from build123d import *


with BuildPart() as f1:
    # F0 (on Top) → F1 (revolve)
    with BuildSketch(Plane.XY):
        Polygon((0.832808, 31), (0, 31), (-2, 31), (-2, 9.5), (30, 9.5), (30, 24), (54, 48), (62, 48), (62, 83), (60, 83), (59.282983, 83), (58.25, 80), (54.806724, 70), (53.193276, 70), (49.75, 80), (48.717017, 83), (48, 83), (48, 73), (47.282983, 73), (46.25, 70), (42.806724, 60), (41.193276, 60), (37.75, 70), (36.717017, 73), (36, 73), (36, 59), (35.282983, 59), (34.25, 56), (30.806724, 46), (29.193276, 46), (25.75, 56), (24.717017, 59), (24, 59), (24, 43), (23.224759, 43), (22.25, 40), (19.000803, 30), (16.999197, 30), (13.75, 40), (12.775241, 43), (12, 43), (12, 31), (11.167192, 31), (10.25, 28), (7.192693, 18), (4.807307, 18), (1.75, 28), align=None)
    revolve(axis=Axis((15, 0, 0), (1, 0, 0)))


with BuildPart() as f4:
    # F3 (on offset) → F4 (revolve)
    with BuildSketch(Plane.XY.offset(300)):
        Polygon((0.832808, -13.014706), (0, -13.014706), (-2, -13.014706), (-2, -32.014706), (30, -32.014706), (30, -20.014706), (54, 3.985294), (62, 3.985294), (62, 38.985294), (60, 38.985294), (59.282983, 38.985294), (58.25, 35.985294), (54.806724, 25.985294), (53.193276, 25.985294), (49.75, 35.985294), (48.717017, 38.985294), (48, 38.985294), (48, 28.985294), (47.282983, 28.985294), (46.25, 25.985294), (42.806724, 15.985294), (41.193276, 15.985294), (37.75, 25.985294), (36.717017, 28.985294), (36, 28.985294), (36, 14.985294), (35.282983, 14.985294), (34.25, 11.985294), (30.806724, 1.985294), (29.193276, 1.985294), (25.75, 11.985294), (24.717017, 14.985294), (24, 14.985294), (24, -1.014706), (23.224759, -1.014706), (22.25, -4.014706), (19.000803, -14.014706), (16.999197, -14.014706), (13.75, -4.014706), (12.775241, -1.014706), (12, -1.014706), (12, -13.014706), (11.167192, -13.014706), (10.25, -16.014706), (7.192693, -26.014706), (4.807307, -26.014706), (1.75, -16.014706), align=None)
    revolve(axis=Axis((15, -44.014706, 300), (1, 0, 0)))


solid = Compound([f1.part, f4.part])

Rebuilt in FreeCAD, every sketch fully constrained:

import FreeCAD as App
import Part
import Sketcher
from FreeCAD import Vector
Q = App.Units.Quantity


def add_polygon(sketch, points):
    """Adds a closed chain of lines whose ends are joined by coincident constraints."""
    first, n = sketch.GeometryCount, len(points)
    for a, b in zip(points, points[1:] + points[:1]):
        sketch.addGeometry(Part.LineSegment(App.Vector(*a, 0), App.Vector(*b, 0)), False)
    for i in range(n):
        sketch.addConstraint(Sketcher.Constraint("Coincident", first + i, 2, first + (i + 1) % n, 1))

doc = App.newDocument("Part")
body = doc.addObject("PartDesign::Body", "Body")

sketch1 = body.newObject("Sketcher::SketchObject", "Sketch")
sketch1.AttachmentSupport = (doc.getObject("XY_Plane"), [""])
sketch1.MapMode = "FlatFace"
add_polygon(sketch1, [(0.8, 31), (-2, 31), (-2, 9.5), (30, 9.5), (30, 24), (54, 48), (62, 48), (62, 83), (59.3, 83), (58.2, 80), (54.8, 70), (53.2, 70), (49.8, 80), (48.7, 83), (48, 83), (48, 73), (47.3, 73), (46.2, 70), (42.8, 60), (41.2, 60), (37.8, 70), (36.7, 73), (36, 73), (36, 59), (35.3, 59), (34.2, 56), (30.8, 46), (29.2, 46), (25.8, 56), (24.7, 59), (24, 59), (24, 43), (23.2, 43), (22.2, 40), (19, 30), (17, 30), (13.8, 40), (12.8, 43), (12, 43), (12, 31), (11.2, 31), (10.2, 28), (7.2, 18), (4.8, 18), (1.8, 28)])
sketch1.addConstraint([
    Sketcher.Constraint("Horizontal", 0),
    Sketcher.Constraint("Vertical", 1),
    Sketcher.Constraint("Horizontal", 2),
    Sketcher.Constraint("Vertical", 3),
    Sketcher.Constraint("Horizontal", 5),
    Sketcher.Constraint("Vertical", 6),
    Sketcher.Constraint("Horizontal", 7),
    Sketcher.Constraint("Horizontal", 10),
    Sketcher.Constraint("Horizontal", 13),
    Sketcher.Constraint("Vertical", 14),
    Sketcher.Constraint("Horizontal", 15),
    Sketcher.Constraint("Horizontal", 18),
    Sketcher.Constraint("Horizontal", 21),
    Sketcher.Constraint("Vertical", 22),
    Sketcher.Constraint("Horizontal", 23),
    Sketcher.Constraint("Horizontal", 26),
    Sketcher.Constraint("Horizontal", 29),
    Sketcher.Constraint("Vertical", 30),
    Sketcher.Constraint("Horizontal", 31),
    Sketcher.Constraint("Horizontal", 34),
    Sketcher.Constraint("Horizontal", 37),
    Sketcher.Constraint("Vertical", 38),
    Sketcher.Constraint("Horizontal", 39),
    Sketcher.Constraint("Horizontal", 42),
    Sketcher.Constraint("Parallel", 8, 9),
    Sketcher.Constraint("Parallel", 11, 12),
    Sketcher.Constraint("Parallel", 9, 16),
    Sketcher.Constraint("Parallel", 16, 17),
    Sketcher.Constraint("Parallel", 12, 19),
    Sketcher.Constraint("Parallel", 19, 20),
    Sketcher.Constraint("Parallel", 17, 24),
    Sketcher.Constraint("Parallel", 24, 25),
    Sketcher.Constraint("Parallel", 20, 27),
    Sketcher.Constraint("Parallel", 27, 28),
    Sketcher.Constraint("Parallel", 32, 33),
    Sketcher.Constraint("Parallel", 35, 36),
    Sketcher.Constraint("Parallel", 40, 41),
    Sketcher.Constraint("Parallel", 43, 44),
    Sketcher.Constraint("Horizontal", 8, 2, 11, 2),
    Sketcher.Constraint("Horizontal", 7, 2, 12, 2),
    Sketcher.Constraint("Horizontal", 10, 2, 16, 2),
    Sketcher.Constraint("Horizontal", 16, 2, 19, 2),
    Sketcher.Constraint("Horizontal", 15, 2, 20, 2),
    Sketcher.Constraint("Horizontal", 24, 2, 27, 2),
    Sketcher.Constraint("Horizontal", 23, 2, 28, 2),
    Sketcher.Constraint("Horizontal", 32, 2, 35, 2),
    Sketcher.Constraint("Horizontal", 31, 2, 36, 2),
    Sketcher.Constraint("Horizontal", 0, 2, 38, 2),
    Sketcher.Constraint("Horizontal", 40, 2, 43, 2),
    Sketcher.Constraint("Equal", 13, 15),
    Sketcher.Constraint("Equal", 10, 18),
    Sketcher.Constraint("Equal", 15, 21),
    Sketcher.Constraint("Equal", 21, 23),
    Sketcher.Constraint("Equal", 18, 26),
    Sketcher.Constraint("Equal", 23, 29),
    Sketcher.Constraint("Equal", 31, 37),
    Sketcher.Constraint("Equal", 9, 11),
    Sketcher.Constraint("Equal", 12, 16),
    Sketcher.Constraint("Equal", 11, 17),
    Sketcher.Constraint("Equal", 20, 24),
    Sketcher.Constraint("Equal", 19, 25),
    Sketcher.Constraint("Equal", 33, 35),
    Sketcher.Constraint("Equal", 41, 43),
    Sketcher.Constraint("DistanceX", 2, 1, 2, 2, Q("32 mm")),
    Sketcher.Constraint("DistanceX", 5, 1, 5, 2, Q("8 mm")),
    Sketcher.Constraint("DistanceY", 6, 1, 6, 2, Q("35 mm")),
    Sketcher.Constraint("DistanceY", 14, 2, 14, 1, Q("10 mm")),
    Sketcher.Constraint("DistanceY", 22, 2, 22, 1, Q("14 mm")),
    Sketcher.Constraint("DistanceY", 30, 2, 30, 1, Q("16 mm")),
    Sketcher.Constraint("DistanceY", 38, 2, 38, 1, Q("12 mm")),
    Sketcher.Constraint("Angle", 4, Q("45 deg")),
    Sketcher.Constraint("Angle", 8, Q("-109.000003 deg")),
    Sketcher.Constraint("Angle", 32, Q("-107.999998 deg")),
    Sketcher.Constraint("Angle", 40, Q("-106.999999 deg")),
    Sketcher.Constraint("DistanceY", 1, 2, 1, 1, Q("21.5 mm")),
    Sketcher.Constraint("DistanceY", 3, 1, 3, 2, Q("14.5 mm")),
    Sketcher.Constraint("DistanceX", 0, 2, -1, 1, Q("2 mm")),
    Sketcher.Constraint("DistanceY", -1, 1, 0, 2, Q("31 mm")),
    Sketcher.Constraint("DistanceY", -1, 1, 8, 2, Q("80 mm")),
    Sketcher.Constraint("DistanceX", -1, 1, 13, 2, Q("48 mm")),
    Sketcher.Constraint("DistanceX", -1, 1, 21, 2, Q("36 mm")),
    Sketcher.Constraint("DistanceY", -1, 1, 32, 2, Q("40 mm")),
    Sketcher.Constraint("DistanceY", -1, 1, 33, 2, Q("30 mm")),
    Sketcher.Constraint("DistanceX", -1, 1, 37, 2, Q("12 mm")),
    Sketcher.Constraint("DistanceY", -1, 1, 40, 2, Q("28 mm")),
    Sketcher.Constraint("DistanceY", -1, 1, 41, 2, Q("18 mm")),
    Sketcher.Constraint("DistanceX", 11, 2, 8, 2, Q("8.5 mm")),
    Sketcher.Constraint("DistanceX", 32, 2, 27, 2, Q("3.5 mm")),
    Sketcher.Constraint("DistanceX", 40, 2, 35, 2, Q("3.5 mm")),
    Sketcher.Constraint("DistanceX", 43, 2, 40, 2, Q("8.5 mm")),
])
revolution = body.newObject("PartDesign::Revolution", "Revolution")
revolution.Profile = sketch1
revolution.ReferenceAxis = (sketch1, ["H_Axis"])
revolution.Angle = 360
body2 = doc.addObject("PartDesign::Body", "Body001")

sketch2 = body2.newObject("Sketcher::SketchObject", "Sketch001")
sketch2.AttachmentSupport = (doc.getObject("XY_Plane001"), [""])
sketch2.MapMode = "FlatFace"
sketch2.AttachmentOffset = App.Placement(Vector(0, 0, 300), App.Rotation())
add_polygon(sketch2, [(0.8, -13), (-2, -13), (-2, -32), (30, -32), (30, -20), (54, 4), (62, 4), (62, 39), (59.3, 39), (58.2, 36), (54.8, 26), (53.2, 26), (49.8, 36), (48.7, 39), (48, 39), (48, 29), (47.3, 29), (46.2, 26), (42.8, 16), (41.2, 16), (37.8, 26), (36.7, 29), (36, 29), (36, 15), (35.3, 15), (34.2, 12), (30.8, 2), (29.2, 2), (25.8, 12), (24.7, 15), (24, 15), (24, -1), (23.2, -1), (22.2, -4), (19, -14), (17, -14), (13.8, -4), (12.8, -1), (12, -1), (12, -13), (11.2, -13), (10.2, -16), (7.2, -26), (4.8, -26), (1.8, -16)])
sketch2.addGeometry(Part.LineSegment(Vector(-2, -44, 0), Vector(62, -44, 0)), True)
sketch2.addConstraint([
    Sketcher.Constraint("Horizontal", 0),
    Sketcher.Constraint("Vertical", 1),
    Sketcher.Constraint("Horizontal", 2),
    Sketcher.Constraint("Vertical", 3),
    Sketcher.Constraint("Horizontal", 5),
    Sketcher.Constraint("Vertical", 6),
    Sketcher.Constraint("Horizontal", 7),
    Sketcher.Constraint("Horizontal", 10),
    Sketcher.Constraint("Horizontal", 13),
    Sketcher.Constraint("Vertical", 14),
    Sketcher.Constraint("Horizontal", 15),
    Sketcher.Constraint("Horizontal", 18),
    Sketcher.Constraint("Horizontal", 21),
    Sketcher.Constraint("Vertical", 22),
    Sketcher.Constraint("Horizontal", 23),
    Sketcher.Constraint("Horizontal", 26),
    Sketcher.Constraint("Horizontal", 29),
    Sketcher.Constraint("Vertical", 30),
    Sketcher.Constraint("Horizontal", 31),
    Sketcher.Constraint("Horizontal", 34),
    Sketcher.Constraint("Horizontal", 37),
    Sketcher.Constraint("Vertical", 38),
    Sketcher.Constraint("Horizontal", 39),
    Sketcher.Constraint("Horizontal", 42),
    Sketcher.Constraint("Horizontal", 45),
    Sketcher.Constraint("Parallel", 8, 9),
    Sketcher.Constraint("Parallel", 11, 12),
    Sketcher.Constraint("Parallel", 9, 16),
    Sketcher.Constraint("Parallel", 16, 17),
    Sketcher.Constraint("Parallel", 12, 19),
    Sketcher.Constraint("Parallel", 19, 20),
    Sketcher.Constraint("Parallel", 17, 24),
    Sketcher.Constraint("Parallel", 24, 25),
    Sketcher.Constraint("Parallel", 20, 27),
    Sketcher.Constraint("Parallel", 27, 28),
    Sketcher.Constraint("Parallel", 32, 33),
    Sketcher.Constraint("Parallel", 35, 36),
    Sketcher.Constraint("Parallel", 40, 41),
    Sketcher.Constraint("Parallel", 43, 44),
    Sketcher.Constraint("Horizontal", 8, 2, 11, 2),
    Sketcher.Constraint("Horizontal", 7, 2, 12, 2),
    Sketcher.Constraint("Horizontal", 10, 2, 16, 2),
    Sketcher.Constraint("Horizontal", 16, 2, 19, 2),
    Sketcher.Constraint("Horizontal", 15, 2, 20, 2),
    Sketcher.Constraint("Horizontal", 24, 2, 27, 2),
    Sketcher.Constraint("Horizontal", 23, 2, 28, 2),
    Sketcher.Constraint("Horizontal", 32, 2, 35, 2),
    Sketcher.Constraint("Horizontal", 31, 2, 36, 2),
    Sketcher.Constraint("Horizontal", 0, 2, 38, 2),
    Sketcher.Constraint("Horizontal", 40, 2, 43, 2),
    Sketcher.Constraint("Vertical", 1, 2, 45, 1),
    Sketcher.Constraint("Vertical", 6, 2, 45, 2),
    Sketcher.Constraint("Equal", 13, 15),
    Sketcher.Constraint("Equal", 10, 18),
    Sketcher.Constraint("Equal", 15, 21),
    Sketcher.Constraint("Equal", 21, 23),
    Sketcher.Constraint("Equal", 18, 26),
    Sketcher.Constraint("Equal", 23, 29),
    Sketcher.Constraint("Equal", 31, 37),
    Sketcher.Constraint("Equal", 3, 38),
    Sketcher.Constraint("Equal", 9, 11),
    Sketcher.Constraint("Equal", 12, 16),
    Sketcher.Constraint("Equal", 11, 17),
    Sketcher.Constraint("Equal", 20, 24),
    Sketcher.Constraint("Equal", 19, 25),
    Sketcher.Constraint("Equal", 33, 35),
    Sketcher.Constraint("Equal", 41, 43),
    Sketcher.Constraint("DistanceX", 2, 1, 2, 2, Q("32 mm")),
    Sketcher.Constraint("DistanceX", 5, 1, 5, 2, Q("8 mm")),
    Sketcher.Constraint("DistanceX", 45, 1, 45, 2, Q("64 mm")),
    Sketcher.Constraint("DistanceY", 1, 2, 1, 1, Q("19 mm")),
    Sketcher.Constraint("DistanceY", 3, 1, 3, 2, Q("12 mm")),
    Sketcher.Constraint("DistanceY", 6, 1, 6, 2, Q("35 mm")),
    Sketcher.Constraint("DistanceY", 14, 2, 14, 1, Q("10 mm")),
    Sketcher.Constraint("DistanceY", 22, 2, 22, 1, Q("14 mm")),
    Sketcher.Constraint("DistanceY", 30, 2, 30, 1, Q("16 mm")),
    Sketcher.Constraint("Angle", 8, Q("-109.000003 deg")),
    Sketcher.Constraint("Angle", 32, Q("-107.999998 deg")),
    Sketcher.Constraint("Angle", 40, Q("-106.999999 deg")),
    Sketcher.Constraint("DistanceX", 0, 2, -1, 1, Q("2 mm")),
    Sketcher.Constraint("DistanceX", -1, 1, 13, 2, Q("48 mm")),
    Sketcher.Constraint("DistanceX", -1, 1, 21, 2, Q("36 mm")),
    Sketcher.Constraint("DistanceX", -1, 1, 37, 2, Q("12 mm")),
    Sketcher.Constraint("DistanceY", 8, 2, 7, 2, Q("3 mm")),
    Sketcher.Constraint("DistanceY", 32, 2, 31, 2, Q("3 mm")),
    Sketcher.Constraint("DistanceY", 33, 2, 32, 2, Q("10 mm")),
    Sketcher.Constraint("DistanceY", 40, 2, 39, 2, Q("3 mm")),
    Sketcher.Constraint("DistanceY", 41, 2, 40, 2, Q("10 mm")),
    Sketcher.Constraint("DistanceY", 45, 1, 1, 2, Q("12 mm")),
    Sketcher.Constraint("DistanceX", 11, 2, 8, 2, Q("8.5 mm")),
    Sketcher.Constraint("DistanceX", 32, 2, 27, 2, Q("3.5 mm")),
    Sketcher.Constraint("DistanceX", 40, 2, 35, 2, Q("3.5 mm")),
    Sketcher.Constraint("DistanceX", 43, 2, 40, 2, Q("8.5 mm")),
    Sketcher.Constraint("DistanceY", 0, 2, -1, 1, Q("13.014706 mm")),
])
revolution2 = body2.newObject("PartDesign::Revolution", "Revolution001")
revolution2.Profile = sketch2
revolution2.ReferenceAxis = (sketch2, ["Axis0"])
revolution2.Angle = 360

doc.recompute()
